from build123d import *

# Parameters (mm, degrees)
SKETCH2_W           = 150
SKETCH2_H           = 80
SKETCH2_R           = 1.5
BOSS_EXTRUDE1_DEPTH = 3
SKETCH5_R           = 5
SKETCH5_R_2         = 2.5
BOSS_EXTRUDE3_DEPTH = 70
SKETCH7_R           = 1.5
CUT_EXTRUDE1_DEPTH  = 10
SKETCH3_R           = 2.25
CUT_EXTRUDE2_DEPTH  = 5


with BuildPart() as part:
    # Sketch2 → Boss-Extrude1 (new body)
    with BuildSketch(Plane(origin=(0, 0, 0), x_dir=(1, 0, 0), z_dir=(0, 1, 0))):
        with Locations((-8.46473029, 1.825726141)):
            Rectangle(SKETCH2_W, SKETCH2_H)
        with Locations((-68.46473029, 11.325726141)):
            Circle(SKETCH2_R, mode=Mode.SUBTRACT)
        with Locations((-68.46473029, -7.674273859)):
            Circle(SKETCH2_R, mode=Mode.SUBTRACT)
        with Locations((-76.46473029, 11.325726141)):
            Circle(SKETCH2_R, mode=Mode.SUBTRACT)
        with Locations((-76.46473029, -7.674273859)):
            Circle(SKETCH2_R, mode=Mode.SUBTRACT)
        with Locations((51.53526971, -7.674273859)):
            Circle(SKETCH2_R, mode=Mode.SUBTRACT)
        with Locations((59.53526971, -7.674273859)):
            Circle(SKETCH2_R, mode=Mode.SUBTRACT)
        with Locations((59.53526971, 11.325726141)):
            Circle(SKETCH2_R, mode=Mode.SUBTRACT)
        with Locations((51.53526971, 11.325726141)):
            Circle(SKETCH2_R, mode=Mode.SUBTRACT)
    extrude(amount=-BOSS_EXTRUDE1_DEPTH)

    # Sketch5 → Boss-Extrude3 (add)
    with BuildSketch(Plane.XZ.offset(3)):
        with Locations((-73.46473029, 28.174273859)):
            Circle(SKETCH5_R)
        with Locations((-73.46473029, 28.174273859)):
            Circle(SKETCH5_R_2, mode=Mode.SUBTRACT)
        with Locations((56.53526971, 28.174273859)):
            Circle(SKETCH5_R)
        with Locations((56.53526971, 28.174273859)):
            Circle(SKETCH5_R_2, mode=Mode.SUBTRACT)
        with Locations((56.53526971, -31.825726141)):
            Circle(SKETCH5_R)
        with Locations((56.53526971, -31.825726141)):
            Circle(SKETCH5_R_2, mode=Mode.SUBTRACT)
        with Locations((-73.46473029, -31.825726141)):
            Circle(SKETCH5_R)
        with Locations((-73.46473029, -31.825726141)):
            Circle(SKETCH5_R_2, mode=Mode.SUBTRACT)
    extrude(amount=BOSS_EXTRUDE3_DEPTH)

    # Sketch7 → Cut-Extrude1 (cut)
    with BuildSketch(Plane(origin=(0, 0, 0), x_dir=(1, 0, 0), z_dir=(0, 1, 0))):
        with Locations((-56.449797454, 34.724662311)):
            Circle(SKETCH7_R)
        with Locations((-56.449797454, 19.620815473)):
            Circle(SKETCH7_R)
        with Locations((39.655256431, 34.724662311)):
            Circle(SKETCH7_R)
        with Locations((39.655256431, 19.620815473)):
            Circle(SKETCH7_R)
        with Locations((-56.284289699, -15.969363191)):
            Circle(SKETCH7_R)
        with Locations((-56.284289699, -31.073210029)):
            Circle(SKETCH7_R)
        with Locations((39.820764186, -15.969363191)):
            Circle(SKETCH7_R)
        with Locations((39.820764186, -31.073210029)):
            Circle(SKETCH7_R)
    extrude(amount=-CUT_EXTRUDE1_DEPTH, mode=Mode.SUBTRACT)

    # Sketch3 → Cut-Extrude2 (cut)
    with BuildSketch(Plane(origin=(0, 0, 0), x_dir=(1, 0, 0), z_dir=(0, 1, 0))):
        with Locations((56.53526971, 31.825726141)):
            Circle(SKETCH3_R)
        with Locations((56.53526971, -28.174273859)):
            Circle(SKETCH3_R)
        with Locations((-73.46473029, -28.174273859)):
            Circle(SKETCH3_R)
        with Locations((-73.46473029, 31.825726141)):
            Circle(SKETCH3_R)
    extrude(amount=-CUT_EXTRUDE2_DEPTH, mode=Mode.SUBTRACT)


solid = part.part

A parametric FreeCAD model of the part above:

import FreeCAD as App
import Part
import Sketcher
Q = App.Units.Quantity

doc = App.newDocument("Part")
body = doc.addObject("PartDesign::Body", "Body")

# Sketch on XZ plane
sketch1 = body.newObject("Sketcher::SketchObject", "Sketch")
sketch1.AttachmentSupport = (doc.getObject("XZ_Plane"), [""])
sketch1.MapMode = "FlatFace"
sketch1.addGeometry(Part.LineSegment(App.Vector(-83.5, -41.8, 0), App.Vector(-83.5, 38.2, 0)), False)
sketch1.addGeometry(Part.LineSegment(App.Vector(-83.5, 38.2, 0), App.Vector(66.5, 38.2, 0)), False)
sketch1.addGeometry(Part.LineSegment(App.Vector(66.5, 38.2, 0), App.Vector(66.5, -41.8, 0)), False)
sketch1.addGeometry(Part.LineSegment(App.Vector(66.5, -41.8, 0), App.Vector(-83.5, -41.8, 0)), False)
sketch1.addGeometry(Part.Circle(App.Vector(-76.5, 7.7, 0), App.Vector(0, 0, 1), 1.5), False)
sketch1.addGeometry(Part.Circle(App.Vector(-68.5, 7.7, 0), App.Vector(0, 0, 1), 1.5), False)
sketch1.addGeometry(Part.Circle(App.Vector(51.5, 7.7, 0), App.Vector(0, 0, 1), 1.5), False)
sketch1.addGeometry(Part.Circle(App.Vector(59.5, 7.7, 0), App.Vector(0, 0, 1), 1.5), False)
sketch1.addGeometry(Part.Circle(App.Vector(-76.5, -11.3, 0), App.Vector(0, 0, 1), 1.5), False)
sketch1.addGeometry(Part.Circle(App.Vector(-68.5, -11.3, 0), App.Vector(0, 0, 1), 1.5), False)
sketch1.addGeometry(Part.Circle(App.Vector(51.5, -11.3, 0), App.Vector(0, 0, 1), 1.5), False)
sketch1.addGeometry(Part.Circle(App.Vector(59.5, -11.3, 0), App.Vector(0, 0, 1), 1.5), False)
sketch1.addConstraint(Sketcher.Constraint("Coincident", 0, 2, 1, 1))
sketch1.addConstraint(Sketcher.Constraint("Coincident", 1, 2, 2, 1))
sketch1.addConstraint(Sketcher.Constraint("Coincident", 2, 2, 3, 1))
sketch1.addConstraint(Sketcher.Constraint("Coincident", 3, 2, 0, 1))
sketch1.addConstraint(Sketcher.Constraint("Vertical", 0))
sketch1.addConstraint(Sketcher.Constraint("Horizontal", 1))
sketch1.addConstraint(Sketcher.Constraint("Vertical", 2))
sketch1.addConstraint(Sketcher.Constraint("Horizontal", 3))
sketch1.addConstraint(Sketcher.Constraint("Equal", 4, 5))
sketch1.addConstraint(Sketcher.Constraint("Equal", 5, 6))
sketch1.addConstraint(Sketcher.Constraint("Equal", 6, 7))
sketch1.addConstraint(Sketcher.Constraint("Equal", 7, 8))
sketch1.addConstraint(Sketcher.Constraint("Equal", 8, 9))
sketch1.addConstraint(Sketcher.Constraint("Equal", 9, 10))
sketch1.addConstraint(Sketcher.Constraint("Equal", 10, 11))
sketch1.addConstraint(Sketcher.Constraint("Horizontal", 4, 3, 5, 3))
sketch1.addConstraint(Sketcher.Constraint("Horizontal", 5, 3, 6, 3))
sketch1.addConstraint(Sketcher.Constraint("Horizontal", 6, 3, 7, 3))
sketch1.addConstraint(Sketcher.Constraint("Horizontal", 8, 3, 9, 3))
sketch1.addConstraint(Sketcher.Constraint("Horizontal", 9, 3, 10, 3))
sketch1.addConstraint(Sketcher.Constraint("Horizontal", 10, 3, 11, 3))
sketch1.addConstraint(Sketcher.Constraint("Vertical", 4, 3, 8, 3))
sketch1.addConstraint(Sketcher.Constraint("Vertical", 5, 3, 9, 3))
sketch1.addConstraint(Sketcher.Constraint("Vertical", 6, 3, 10, 3))
sketch1.addConstraint(Sketcher.Constraint("Vertical", 7, 3, 11, 3))
sketch1.addConstraint(Sketcher.Constraint("Diameter", 4, Q("3 mm")))
sketch1.addConstraint(Sketcher.Constraint("DistanceX", 1, 1, 1, 2, Q("150 mm")))
sketch1.addConstraint(Sketcher.Constraint("DistanceY", 0, 1, 0, 2, Q("80 mm")))
sketch1.addConstraint(Sketcher.Constraint("DistanceX", 4, 3, 5, 3, Q("8 mm")))
sketch1.addConstraint(Sketcher.Constraint("DistanceX", 5, 3, 6, 3, Q("120 mm")))
sketch1.addConstraint(Sketcher.Constraint("DistanceX", 6, 3, 7, 3, Q("8 mm")))
sketch1.addConstraint(Sketcher.Constraint("DistanceY", 8, 3, 4, 3, Q("19 mm")))
sketch1.addConstraint(Sketcher.Constraint("DistanceX", 0, 2, 4, 3, Q("7 mm")))
sketch1.addConstraint(Sketcher.Constraint("DistanceY", 4, 3, 0, 2, Q("30.5 mm")))
sketch1.addConstraint(Sketcher.Constraint("DistanceX", 4, 3, -1, 1, Q("76.46473 mm")))
sketch1.addConstraint(Sketcher.Constraint("DistanceY", -1, 1, 4, 3, Q("7.674274 mm")))
pad1 = body.newObject("PartDesign::Pad", "Pad")
pad1.Profile = sketch1
pad1.Length = 3

# Sketch on XZ plane
sketch2 = body.newObject("Sketcher::SketchObject", "Sketch001")
sketch2.AttachmentSupport = (doc.getObject("XZ_Plane"), [""])
sketch2.MapMode = "FlatFace"
sketch2.AttachmentOffset = App.Placement(App.Vector(0, 0, 3), App.Rotation())
sketch2.addGeometry(Part.Circle(App.Vector(-73.5, 28.2, 0), App.Vector(0, 0, 1), 5), False)
sketch2.addGeometry(Part.Circle(App.Vector(-73.5, 28.2, 0), App.Vector(0, 0, 1), 2.5), False)
sketch2.addGeometry(Part.Circle(App.Vector(56.5, 28.2, 0), App.Vector(0, 0, 1), 5), False)
sketch2.addGeometry(Part.Circle(App.Vector(56.5, 28.2, 0), App.Vector(0, 0, 1), 2.5), False)
sketch2.addGeometry(Part.Circle(App.Vector(56.5, -31.8, 0), App.Vector(0, 0, 1), 5), False)
sketch2.addGeometry(Part.Circle(App.Vector(56.5, -31.8, 0), App.Vector(0, 0, 1), 2.5), False)
sketch2.addGeometry(Part.Circle(App.Vector(-73.5, -31.8, 0), App.Vector(0, 0, 1), 5), False)
sketch2.addGeometry(Part.Circle(App.Vector(-73.5, -31.8, 0), App.Vector(0, 0, 1), 2.5), False)
sketch2.addConstraint(Sketcher.Constraint("Coincident", 1, 3, 0, 3))
sketch2.addConstraint(Sketcher.Constraint("Coincident", 3, 3, 2, 3))
sketch2.addConstraint(Sketcher.Constraint("Coincident", 5, 3, 4, 3))
sketch2.addConstraint(Sketcher.Constraint("Coincident", 7, 3, 6, 3))
sketch2.addConstraint(Sketcher.Constraint("Equal", 0, 2))
sketch2.addConstraint(Sketcher.Constraint("Equal", 1, 3))
sketch2.addConstraint(Sketcher.Constraint("Equal", 2, 4))
sketch2.addConstraint(Sketcher.Constraint("Equal", 3, 5))
sketch2.addConstraint(Sketcher.Constraint("Equal", 4, 6))
sketch2.addConstraint(Sketcher.Constraint("Equal", 5, 7))
sketch2.addConstraint(Sketcher.Constraint("Horizontal", 1, 3, 2, 3))
sketch2.addConstraint(Sketcher.Constraint("Horizontal", 5, 3, 6, 3))
sketch2.addConstraint(Sketcher.Constraint("Vertical", 3, 3, 4, 3))
sketch2.addConstraint(Sketcher.Constraint("Vertical", 1, 3, 6, 3))
sketch2.addConstraint(Sketcher.Constraint("Diameter", 0, Q("10 mm")))
sketch2.addConstraint(Sketcher.Constraint("Diameter", 1, Q("5 mm")))
sketch2.addConstraint(Sketcher.Constraint("DistanceX", 0, 3, 2, 3, Q("130 mm")))
sketch2.addConstraint(Sketcher.Constraint("DistanceY", 4, 3, 2, 3, Q("60 mm")))
sketch2.addConstraint(Sketcher.Constraint("DistanceX", 0, 3, -1, 1, Q("73.46473 mm")))
sketch2.addConstraint(Sketcher.Constraint("DistanceY", -1, 1, 0, 3, Q("28.174274 mm")))
pad2 = body.newObject("PartDesign::Pad", "Pad001")
pad2.Profile = sketch2
pad2.Length = 70

# Sketch on XZ plane
sketch3 = body.newObject("Sketcher::SketchObject", "Sketch002")
sketch3.AttachmentSupport = (doc.getObject("XZ_Plane"), [""])
sketch3.MapMode = "FlatFace"
sketch3.addGeometry(Part.Circle(App.Vector(-56.4, -34.7, 0), App.Vector(0, 0, 1), 1.5), False)
sketch3.addGeometry(Part.Circle(App.Vector(-56.4, -19.6, 0), App.Vector(0, 0, 1), 1.5), False)
sketch3.addGeometry(Part.Circle(App.Vector(39.7, -34.7, 0), App.Vector(0, 0, 1), 1.5), False)
sketch3.addGeometry(Part.Circle(App.Vector(39.7, -19.6, 0), App.Vector(0, 0, 1), 1.5), False)
sketch3.addGeometry(Part.Circle(App.Vector(-56.3, 16, 0), App.Vector(0, 0, 1), 1.5), False)
sketch3.addGeometry(Part.Circle(App.Vector(-56.3, 31.1, 0), App.Vector(0, 0, 1), 1.5), False)
sketch3.addGeometry(Part.Circle(App.Vector(39.8, 16, 0), App.Vector(0, 0, 1), 1.5), False)
sketch3.addGeometry(Part.Circle(App.Vector(39.8, 31.1, 0), App.Vector(0, 0, 1), 1.5), False)
sketch3.addConstraint(Sketcher.Constraint("Equal", 0, 1))
sketch3.addConstraint(Sketcher.Constraint("Equal", 1, 2))
sketch3.addConstraint(Sketcher.Constraint("Equal", 2, 3))
sketch3.addConstraint(Sketcher.Constraint("Equal", 3, 4))
sketch3.addConstraint(Sketcher.Constraint("Equal", 4, 5))
sketch3.addConstraint(Sketcher.Constraint("Equal", 5, 6))
sketch3.addConstraint(Sketcher.Constraint("Equal", 6, 7))
sketch3.addConstraint(Sketcher.Constraint("Horizontal", 0, 3, 2, 3))
sketch3.addConstraint(Sketcher.Constraint("Horizontal", 1, 3, 3, 3))
sketch3.addConstraint(Sketcher.Constraint("Horizontal", 4, 3, 6, 3))
sketch3.addConstraint(Sketcher.Constraint("Horizontal", 5, 3, 7, 3))
sketch3.addConstraint(Sketcher.Constraint("Vertical", 0, 3, 1, 3))
sketch3.addConstraint(Sketcher.Constraint("Vertical", 2, 3, 3, 3))
sketch3.addConstraint(Sketcher.Constraint("Vertical", 4, 3, 5, 3))
sketch3.addConstraint(Sketcher.Constraint("Vertical", 6, 3, 7, 3))
sketch3.addConstraint(Sketcher.Constraint("Diameter", 0, Q("3 mm")))
sketch3.addConstraint(Sketcher.Constraint("DistanceX", 4, 3, -1, 1, Q("56.28429 mm")))
sketch3.addConstraint(Sketcher.Constraint("DistanceY", -1, 1, 5, 3, Q("31.07321 mm")))
sketch3.addConstraint(Sketcher.Constraint("DistanceY", 1, 3, 4, 3, Q("35.590179 mm")))
sketch3.addConstraint(Sketcher.Constraint("DistanceX", 1, 3, 6, 3, Q("96.270562 mm")))
sketch3.addConstraint(Sketcher.Constraint("DistanceX", 0, 3, -1, 1, Q("56.449797 mm")))
sketch3.addConstraint(Sketcher.Constraint("DistanceY", 0, 3, -1, 1, Q("34.724662 mm")))
sketch3.addConstraint(Sketcher.Constraint("DistanceY", 1, 3, -1, 1, Q("19.620815 mm")))
sketch3.addConstraint(Sketcher.Constraint("DistanceX", -1, 1, 2, 3, Q("39.655256 mm")))
pocket1 = body.newObject("PartDesign::Pocket", "Pocket")
pocket1.Profile = sketch3
pocket1.Length = 10
pocket1.Reversed = True

# Sketch on XZ plane
sketch4 = body.newObject("Sketcher::SketchObject", "Sketch003")
sketch4.AttachmentSupport = (doc.getObject("XZ_Plane"), [""])
sketch4.MapMode = "FlatFace"
sketch4.addGeometry(Part.Circle(App.Vector(56.5, -31.8, 0), App.Vector(0, 0, 1), 2.2), False)
sketch4.addGeometry(Part.Circle(App.Vector(56.5, 28.2, 0), App.Vector(0, 0, 1), 2.2), False)
sketch4.addGeometry(Part.Circle(App.Vector(-73.5, 28.2, 0), App.Vector(0, 0, 1), 2.2), False)
sketch4.addGeometry(Part.Circle(App.Vector(-73.5, -31.8, 0), App.Vector(0, 0, 1), 2.2), False)
sketch4.addConstraint(Sketcher.Constraint("Equal", 0, 1))
sketch4.addConstraint(Sketcher.Constraint("Equal", 1, 2))
sketch4.addConstraint(Sketcher.Constraint("Equal", 2, 3))
sketch4.addConstraint(Sketcher.Constraint("Horizontal", 1, 3, 2, 3))
sketch4.addConstraint(Sketcher.Constraint("Horizontal", 0, 3, 3, 3))
sketch4.addConstraint(Sketcher.Constraint("Vertical", 0, 3, 1, 3))
sketch4.addConstraint(Sketcher.Constraint("Vertical", 2, 3, 3, 3))
sketch4.addConstraint(Sketcher.Constraint("Diameter", 0, Q("4.5 mm")))
sketch4.addConstraint(Sketcher.Constraint("DistanceY", 0, 3, 1, 3, Q("60 mm")))
sketch4.addConstraint(Sketcher.Constraint("DistanceX", 2, 3, 1, 3, Q("130 mm")))
sketch4.addConstraint(Sketcher.Constraint("DistanceX", -1, 1, 0, 3, Q("56.53527 mm")))
sketch4.addConstraint(Sketcher.Constraint("DistanceY", 0, 3, -1, 1, Q("31.825726 mm")))
pocket2 = body.newObject("PartDesign::Pocket", "Pocket001")
pocket2.Profile = sketch4
pocket2.Length = 5
pocket2.Reversed = True

doc.recompute()
